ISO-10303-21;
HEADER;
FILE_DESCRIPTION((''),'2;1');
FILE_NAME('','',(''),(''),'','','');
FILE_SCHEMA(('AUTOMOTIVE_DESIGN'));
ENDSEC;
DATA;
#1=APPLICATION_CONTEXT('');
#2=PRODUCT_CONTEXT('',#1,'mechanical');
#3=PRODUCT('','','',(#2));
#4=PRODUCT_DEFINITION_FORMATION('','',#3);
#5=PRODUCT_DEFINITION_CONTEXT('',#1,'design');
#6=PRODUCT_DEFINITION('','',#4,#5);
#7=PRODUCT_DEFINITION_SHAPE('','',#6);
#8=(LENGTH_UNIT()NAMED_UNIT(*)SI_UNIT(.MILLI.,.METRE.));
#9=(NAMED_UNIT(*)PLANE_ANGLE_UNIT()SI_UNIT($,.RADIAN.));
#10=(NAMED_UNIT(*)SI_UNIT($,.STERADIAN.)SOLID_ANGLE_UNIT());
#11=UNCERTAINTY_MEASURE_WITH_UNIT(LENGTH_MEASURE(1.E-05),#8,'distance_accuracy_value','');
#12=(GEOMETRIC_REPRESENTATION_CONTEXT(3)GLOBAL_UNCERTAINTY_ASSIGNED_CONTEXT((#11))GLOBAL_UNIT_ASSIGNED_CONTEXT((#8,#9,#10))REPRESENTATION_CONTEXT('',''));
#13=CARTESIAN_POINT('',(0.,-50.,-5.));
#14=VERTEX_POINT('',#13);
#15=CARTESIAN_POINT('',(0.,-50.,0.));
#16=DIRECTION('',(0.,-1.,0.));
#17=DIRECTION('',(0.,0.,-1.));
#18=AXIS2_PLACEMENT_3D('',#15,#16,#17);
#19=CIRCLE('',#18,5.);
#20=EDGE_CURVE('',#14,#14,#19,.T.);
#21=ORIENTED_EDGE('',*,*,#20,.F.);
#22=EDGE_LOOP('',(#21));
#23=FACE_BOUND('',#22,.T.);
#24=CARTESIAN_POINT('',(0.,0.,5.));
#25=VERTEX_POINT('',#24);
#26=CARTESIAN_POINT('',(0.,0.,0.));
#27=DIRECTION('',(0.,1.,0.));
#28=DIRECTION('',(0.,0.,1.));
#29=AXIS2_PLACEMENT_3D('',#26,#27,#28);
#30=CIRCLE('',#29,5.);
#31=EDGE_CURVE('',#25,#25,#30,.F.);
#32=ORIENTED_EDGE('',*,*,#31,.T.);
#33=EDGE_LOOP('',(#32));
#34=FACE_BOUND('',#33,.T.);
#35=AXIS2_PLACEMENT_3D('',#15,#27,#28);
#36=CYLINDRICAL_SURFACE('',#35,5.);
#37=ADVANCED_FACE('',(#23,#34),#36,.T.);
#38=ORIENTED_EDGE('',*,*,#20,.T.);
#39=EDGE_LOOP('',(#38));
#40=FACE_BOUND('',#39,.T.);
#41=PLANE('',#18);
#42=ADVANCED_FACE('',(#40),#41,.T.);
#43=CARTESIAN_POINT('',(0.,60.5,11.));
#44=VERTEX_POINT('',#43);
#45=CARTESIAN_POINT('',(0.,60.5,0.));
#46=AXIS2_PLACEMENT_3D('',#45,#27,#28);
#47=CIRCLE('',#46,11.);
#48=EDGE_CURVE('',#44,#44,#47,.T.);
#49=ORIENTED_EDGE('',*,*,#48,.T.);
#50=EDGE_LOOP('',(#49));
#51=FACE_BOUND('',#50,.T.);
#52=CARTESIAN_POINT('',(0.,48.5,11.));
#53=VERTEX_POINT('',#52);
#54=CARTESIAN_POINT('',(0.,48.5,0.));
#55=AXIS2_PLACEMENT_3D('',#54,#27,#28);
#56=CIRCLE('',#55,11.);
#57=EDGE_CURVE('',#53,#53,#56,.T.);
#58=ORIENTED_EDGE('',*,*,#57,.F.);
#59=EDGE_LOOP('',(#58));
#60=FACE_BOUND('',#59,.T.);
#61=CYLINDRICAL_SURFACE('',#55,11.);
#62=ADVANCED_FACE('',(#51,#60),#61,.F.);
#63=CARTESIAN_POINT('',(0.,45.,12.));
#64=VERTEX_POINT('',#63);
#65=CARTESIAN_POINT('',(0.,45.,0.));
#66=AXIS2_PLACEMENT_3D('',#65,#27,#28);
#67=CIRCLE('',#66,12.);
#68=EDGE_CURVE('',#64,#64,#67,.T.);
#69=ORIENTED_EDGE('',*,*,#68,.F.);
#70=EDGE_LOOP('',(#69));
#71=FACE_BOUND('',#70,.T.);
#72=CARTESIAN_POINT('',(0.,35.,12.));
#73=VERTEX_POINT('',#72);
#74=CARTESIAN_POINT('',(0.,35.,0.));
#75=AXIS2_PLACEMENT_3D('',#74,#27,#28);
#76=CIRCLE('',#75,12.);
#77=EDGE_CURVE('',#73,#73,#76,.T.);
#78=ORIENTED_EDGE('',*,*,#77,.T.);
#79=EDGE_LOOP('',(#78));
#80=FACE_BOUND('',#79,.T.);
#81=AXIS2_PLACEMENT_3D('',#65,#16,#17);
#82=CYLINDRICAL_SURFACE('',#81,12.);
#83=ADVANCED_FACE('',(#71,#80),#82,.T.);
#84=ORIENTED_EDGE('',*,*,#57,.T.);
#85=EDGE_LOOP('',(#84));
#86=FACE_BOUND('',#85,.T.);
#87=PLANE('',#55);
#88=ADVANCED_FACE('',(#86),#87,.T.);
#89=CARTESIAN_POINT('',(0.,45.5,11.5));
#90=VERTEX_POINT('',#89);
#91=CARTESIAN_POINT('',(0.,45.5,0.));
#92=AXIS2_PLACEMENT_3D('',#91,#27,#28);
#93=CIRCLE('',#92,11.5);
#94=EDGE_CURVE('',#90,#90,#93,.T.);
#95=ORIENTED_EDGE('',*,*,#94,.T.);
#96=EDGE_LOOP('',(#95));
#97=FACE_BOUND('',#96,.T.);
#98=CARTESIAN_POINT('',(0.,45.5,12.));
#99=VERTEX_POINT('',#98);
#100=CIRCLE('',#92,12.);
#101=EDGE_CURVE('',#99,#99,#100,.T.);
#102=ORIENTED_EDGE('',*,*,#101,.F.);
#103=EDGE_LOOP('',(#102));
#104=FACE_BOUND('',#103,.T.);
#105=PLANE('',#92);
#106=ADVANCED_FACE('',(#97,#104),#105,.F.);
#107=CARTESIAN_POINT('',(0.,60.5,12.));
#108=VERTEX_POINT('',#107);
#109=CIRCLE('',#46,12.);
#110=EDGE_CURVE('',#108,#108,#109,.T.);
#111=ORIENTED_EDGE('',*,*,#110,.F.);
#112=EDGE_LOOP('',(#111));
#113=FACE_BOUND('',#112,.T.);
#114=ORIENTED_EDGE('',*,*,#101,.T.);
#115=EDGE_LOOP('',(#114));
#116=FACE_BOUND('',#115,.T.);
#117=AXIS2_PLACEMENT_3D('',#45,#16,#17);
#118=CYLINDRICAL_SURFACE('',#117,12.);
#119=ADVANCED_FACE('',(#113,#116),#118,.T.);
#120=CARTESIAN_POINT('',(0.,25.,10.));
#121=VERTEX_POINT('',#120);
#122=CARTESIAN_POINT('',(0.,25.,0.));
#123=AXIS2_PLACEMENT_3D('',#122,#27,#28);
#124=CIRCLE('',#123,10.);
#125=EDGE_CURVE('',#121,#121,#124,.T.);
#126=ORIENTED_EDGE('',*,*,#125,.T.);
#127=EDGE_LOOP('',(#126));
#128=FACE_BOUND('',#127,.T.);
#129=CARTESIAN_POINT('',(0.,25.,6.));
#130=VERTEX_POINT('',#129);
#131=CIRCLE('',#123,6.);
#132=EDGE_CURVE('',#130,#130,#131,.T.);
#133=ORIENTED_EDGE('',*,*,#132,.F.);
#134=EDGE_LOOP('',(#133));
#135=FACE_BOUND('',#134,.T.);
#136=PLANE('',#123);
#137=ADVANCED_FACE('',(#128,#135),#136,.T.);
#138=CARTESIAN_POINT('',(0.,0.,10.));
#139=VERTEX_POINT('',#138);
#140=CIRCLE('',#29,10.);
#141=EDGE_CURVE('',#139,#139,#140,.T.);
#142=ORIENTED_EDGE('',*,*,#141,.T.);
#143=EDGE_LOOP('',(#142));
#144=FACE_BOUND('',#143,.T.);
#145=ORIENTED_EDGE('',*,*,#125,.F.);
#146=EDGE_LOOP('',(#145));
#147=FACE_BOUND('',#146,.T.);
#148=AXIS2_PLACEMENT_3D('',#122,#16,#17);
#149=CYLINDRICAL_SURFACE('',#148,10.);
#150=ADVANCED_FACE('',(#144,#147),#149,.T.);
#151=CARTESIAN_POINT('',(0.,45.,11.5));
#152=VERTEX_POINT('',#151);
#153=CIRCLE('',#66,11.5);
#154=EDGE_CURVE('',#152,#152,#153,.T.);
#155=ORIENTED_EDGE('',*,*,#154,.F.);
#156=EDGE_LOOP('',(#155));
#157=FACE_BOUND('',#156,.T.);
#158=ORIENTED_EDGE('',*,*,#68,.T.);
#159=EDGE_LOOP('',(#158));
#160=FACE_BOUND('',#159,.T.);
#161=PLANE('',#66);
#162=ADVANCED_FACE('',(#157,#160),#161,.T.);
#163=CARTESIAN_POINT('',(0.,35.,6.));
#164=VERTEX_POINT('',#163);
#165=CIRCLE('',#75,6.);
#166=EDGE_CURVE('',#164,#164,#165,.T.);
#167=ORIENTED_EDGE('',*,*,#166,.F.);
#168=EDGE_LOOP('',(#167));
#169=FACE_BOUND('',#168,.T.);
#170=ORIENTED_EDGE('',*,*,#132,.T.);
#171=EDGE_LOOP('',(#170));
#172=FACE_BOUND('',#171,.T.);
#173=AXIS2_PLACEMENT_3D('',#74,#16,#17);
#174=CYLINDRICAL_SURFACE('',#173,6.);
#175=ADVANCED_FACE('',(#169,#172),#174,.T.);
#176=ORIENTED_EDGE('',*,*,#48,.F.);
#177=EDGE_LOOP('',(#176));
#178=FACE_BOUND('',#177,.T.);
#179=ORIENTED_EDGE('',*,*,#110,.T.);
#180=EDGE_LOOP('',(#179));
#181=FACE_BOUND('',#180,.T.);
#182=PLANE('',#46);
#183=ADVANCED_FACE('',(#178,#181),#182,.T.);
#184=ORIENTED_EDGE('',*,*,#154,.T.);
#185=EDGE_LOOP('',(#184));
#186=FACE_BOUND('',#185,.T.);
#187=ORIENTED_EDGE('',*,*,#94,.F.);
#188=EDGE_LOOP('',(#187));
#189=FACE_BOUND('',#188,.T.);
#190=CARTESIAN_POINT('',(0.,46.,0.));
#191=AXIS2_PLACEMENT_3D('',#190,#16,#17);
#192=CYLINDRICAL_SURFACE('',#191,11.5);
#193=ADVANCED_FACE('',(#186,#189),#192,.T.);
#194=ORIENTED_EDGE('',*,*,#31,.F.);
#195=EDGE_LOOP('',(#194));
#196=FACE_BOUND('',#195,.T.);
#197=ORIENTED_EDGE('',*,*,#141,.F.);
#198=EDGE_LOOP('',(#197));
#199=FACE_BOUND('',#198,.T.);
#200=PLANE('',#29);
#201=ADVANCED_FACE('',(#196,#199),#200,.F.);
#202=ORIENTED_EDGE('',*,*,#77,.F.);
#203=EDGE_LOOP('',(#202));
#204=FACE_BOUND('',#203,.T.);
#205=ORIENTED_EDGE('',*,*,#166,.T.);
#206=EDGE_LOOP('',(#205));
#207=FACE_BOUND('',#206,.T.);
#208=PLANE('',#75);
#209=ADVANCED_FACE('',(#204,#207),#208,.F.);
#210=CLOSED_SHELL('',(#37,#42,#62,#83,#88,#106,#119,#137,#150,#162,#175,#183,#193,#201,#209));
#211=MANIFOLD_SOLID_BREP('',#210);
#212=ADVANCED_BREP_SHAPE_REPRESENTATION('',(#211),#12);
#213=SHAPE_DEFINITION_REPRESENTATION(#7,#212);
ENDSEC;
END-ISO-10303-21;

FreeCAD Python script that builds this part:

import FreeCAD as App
import Part
import Sketcher
from FreeCAD import Vector
Q = App.Units.Quantity

doc = App.newDocument("Part")
params = doc.addObject("Spreadsheet::Sheet", "Params")
for row, (alias, value) in enumerate([
    ("sketch1_diameter", "20 mm"),
    ("pad1_length", "25 mm"),
    ("sketch2_diameter", "10 mm"),
    ("pad2_length", "50 mm"),
    ("sketch3_diameter", "12 mm"),
    ("pad3_length", "10 mm"),
    ("sketch4_diameter", "24 mm"),
    ("pad4_length", "10 mm"),
    ("sketch5_diameter", "24 mm"),
    ("pad5_length", "15 mm"),
    ("sketch6_diameter", "23 mm"),
    ("pad6_length", "1 mm"),
    ("sketch7_diameter", "22 mm"),
    ("pocket1_length", "12 mm"),
], start=1):
    params.set(f"A{row}", alias)
    params.set(f"B{row}", "=" + value)
    params.setAlias(f"B{row}", alias)

body = doc.addObject("PartDesign::Body", "Body")

sketch1 = body.newObject("Sketcher::SketchObject", "Sketch")
sketch1.AttachmentSupport = (doc.getObject("XZ_Plane"), [""])
sketch1.MapMode = "FlatFace"
sketch1.addGeometry(Part.Circle(Vector(0, 0, 0), Vector(0, 0, 1), 10), False)
sketch1.addConstraint(Sketcher.Constraint("Coincident", 0, 3, -1, 1))
sketch1.addConstraint(Sketcher.Constraint("Diameter", 0, Q("20 mm")))
sketch1.setExpression("Constraints[1]", "Params.sketch1_diameter")
pad1 = body.newObject("PartDesign::Pad", "Pad")
pad1.Profile = sketch1
pad1.setExpression("Length", "Params.pad1_length")
pad1.Reversed = True

sketch2 = body.newObject("Sketcher::SketchObject", "Sketch001")
sketch2.AttachmentSupport = (doc.getObject("XZ_Plane"), [""])
sketch2.MapMode = "FlatFace"
sketch2.addGeometry(Part.Circle(Vector(0, 0, 0), Vector(0, 0, 1), 5), False)
sketch2.addConstraint(Sketcher.Constraint("Coincident", 0, 3, -1, 1))
sketch2.addConstraint(Sketcher.Constraint("Diameter", 0, Q("10 mm")))
sketch2.setExpression("Constraints[1]", "Params.sketch2_diameter")
pad2 = body.newObject("PartDesign::Pad", "Pad001")
pad2.Profile = sketch2
pad2.setExpression("Length", "Params.pad2_length")

sketch3 = body.newObject("Sketcher::SketchObject", "Sketch002")
sketch3.AttachmentSupport = (doc.getObject("XZ_Plane"), [""])
sketch3.MapMode = "FlatFace"
sketch3.AttachmentOffset = App.Placement(Vector(0, 0, -25), App.Rotation())
sketch3.addGeometry(Part.Circle(Vector(0, 0, 0), Vector(0, 0, 1), 6), False)
sketch3.addConstraint(Sketcher.Constraint("Coincident", 0, 3, -1, 1))
sketch3.addConstraint(Sketcher.Constraint("Diameter", 0, Q("12 mm")))
sketch3.setExpression("Constraints[1]", "Params.sketch3_diameter")
pad3 = body.newObject("PartDesign::Pad", "Pad002")
pad3.Profile = sketch3
pad3.setExpression("Length", "Params.pad3_length")
pad3.Reversed = True

sketch4 = body.newObject("Sketcher::SketchObject", "Sketch003")
sketch4.AttachmentSupport = (doc.getObject("XZ_Plane"), [""])
sketch4.MapMode = "FlatFace"
sketch4.AttachmentOffset = App.Placement(Vector(0, 0, -35), App.Rotation())
sketch4.addGeometry(Part.Circle(Vector(0, 0, 0), Vector(0, 0, 1), 12), False)
sketch4.addConstraint(Sketcher.Constraint("Coincident", 0, 3, -1, 1))
sketch4.addConstraint(Sketcher.Constraint("Diameter", 0, Q("24 mm")))
sketch4.setExpression("Constraints[1]", "Params.sketch4_diameter")
pad4 = body.newObject("PartDesign::Pad", "Pad003")
pad4.Profile = sketch4
pad4.setExpression("Length", "Params.pad4_length")
pad4.Reversed = True
body2 = doc.addObject("PartDesign::Body", "Body001")

sketch5 = body2.newObject("Sketcher::SketchObject", "Sketch004")
sketch5.AttachmentSupport = (doc.getObject("XZ_Plane001"), [""])
sketch5.MapMode = "FlatFace"
sketch5.AttachmentOffset = App.Placement(Vector(0, 0, -45.5), App.Rotation())
sketch5.addGeometry(Part.Circle(Vector(0, 0, 0), Vector(0, 0, 1), 12), False)
sketch5.addConstraint(Sketcher.Constraint("Coincident", 0, 3, -1, 1))
sketch5.addConstraint(Sketcher.Constraint("Diameter", 0, Q("24 mm")))
sketch5.setExpression("Constraints[1]", "Params.sketch5_diameter")
pad5 = body2.newObject("PartDesign::Pad", "Pad004")
pad5.Profile = sketch5
pad5.setExpression("Length", "Params.pad5_length")
pad5.Reversed = True
body.AllowCompound = True
doc.recompute()

boolean = body.newObject("PartDesign::Boolean", "Boolean")
boolean.Type = "Fuse"
boolean.addObjects([body2])

sketch6 = body.newObject("Sketcher::SketchObject", "Sketch005")
sketch6.AttachmentSupport = (doc.getObject("XZ_Plane"), [""])
sketch6.MapMode = "FlatFace"
sketch6.AttachmentOffset = App.Placement(Vector(0, 0, -45), App.Rotation())
sketch6.addGeometry(Part.Circle(Vector(0, 0, 0), Vector(0, 0, 1), 12), False)
sketch6.addConstraint(Sketcher.Constraint("Coincident", 0, 3, -1, 1))
sketch6.addConstraint(Sketcher.Constraint("Diameter", 0, Q("23 mm")))
sketch6.setExpression("Constraints[1]", "Params.sketch6_diameter")
pad6 = body.newObject("PartDesign::Pad", "Pad005")
pad6.Profile = sketch6
pad6.setExpression("Length", "Params.pad6_length")
pad6.Reversed = True

sketch7 = body.newObject("Sketcher::SketchObject", "Sketch006")
sketch7.AttachmentSupport = (doc.getObject("XZ_Plane"), [""])
sketch7.MapMode = "FlatFace"
sketch7.AttachmentOffset = App.Placement(Vector(0, 0, -60.5), App.Rotation())
sketch7.addGeometry(Part.Circle(Vector(0, 0, 0), Vector(0, 0, 1), 11), False)
sketch7.addConstraint(Sketcher.Constraint("Coincident", 0, 3, -1, 1))
sketch7.addConstraint(Sketcher.Constraint("Diameter", 0, Q("22 mm")))
sketch7.setExpression("Constraints[1]", "Params.sketch7_diameter")
pocket1 = body.newObject("PartDesign::Pocket", "Pocket")
pocket1.Profile = sketch7
pocket1.setExpression("Length", "Params.pocket1_length")
pocket1.Reversed = True

doc.recompute()
